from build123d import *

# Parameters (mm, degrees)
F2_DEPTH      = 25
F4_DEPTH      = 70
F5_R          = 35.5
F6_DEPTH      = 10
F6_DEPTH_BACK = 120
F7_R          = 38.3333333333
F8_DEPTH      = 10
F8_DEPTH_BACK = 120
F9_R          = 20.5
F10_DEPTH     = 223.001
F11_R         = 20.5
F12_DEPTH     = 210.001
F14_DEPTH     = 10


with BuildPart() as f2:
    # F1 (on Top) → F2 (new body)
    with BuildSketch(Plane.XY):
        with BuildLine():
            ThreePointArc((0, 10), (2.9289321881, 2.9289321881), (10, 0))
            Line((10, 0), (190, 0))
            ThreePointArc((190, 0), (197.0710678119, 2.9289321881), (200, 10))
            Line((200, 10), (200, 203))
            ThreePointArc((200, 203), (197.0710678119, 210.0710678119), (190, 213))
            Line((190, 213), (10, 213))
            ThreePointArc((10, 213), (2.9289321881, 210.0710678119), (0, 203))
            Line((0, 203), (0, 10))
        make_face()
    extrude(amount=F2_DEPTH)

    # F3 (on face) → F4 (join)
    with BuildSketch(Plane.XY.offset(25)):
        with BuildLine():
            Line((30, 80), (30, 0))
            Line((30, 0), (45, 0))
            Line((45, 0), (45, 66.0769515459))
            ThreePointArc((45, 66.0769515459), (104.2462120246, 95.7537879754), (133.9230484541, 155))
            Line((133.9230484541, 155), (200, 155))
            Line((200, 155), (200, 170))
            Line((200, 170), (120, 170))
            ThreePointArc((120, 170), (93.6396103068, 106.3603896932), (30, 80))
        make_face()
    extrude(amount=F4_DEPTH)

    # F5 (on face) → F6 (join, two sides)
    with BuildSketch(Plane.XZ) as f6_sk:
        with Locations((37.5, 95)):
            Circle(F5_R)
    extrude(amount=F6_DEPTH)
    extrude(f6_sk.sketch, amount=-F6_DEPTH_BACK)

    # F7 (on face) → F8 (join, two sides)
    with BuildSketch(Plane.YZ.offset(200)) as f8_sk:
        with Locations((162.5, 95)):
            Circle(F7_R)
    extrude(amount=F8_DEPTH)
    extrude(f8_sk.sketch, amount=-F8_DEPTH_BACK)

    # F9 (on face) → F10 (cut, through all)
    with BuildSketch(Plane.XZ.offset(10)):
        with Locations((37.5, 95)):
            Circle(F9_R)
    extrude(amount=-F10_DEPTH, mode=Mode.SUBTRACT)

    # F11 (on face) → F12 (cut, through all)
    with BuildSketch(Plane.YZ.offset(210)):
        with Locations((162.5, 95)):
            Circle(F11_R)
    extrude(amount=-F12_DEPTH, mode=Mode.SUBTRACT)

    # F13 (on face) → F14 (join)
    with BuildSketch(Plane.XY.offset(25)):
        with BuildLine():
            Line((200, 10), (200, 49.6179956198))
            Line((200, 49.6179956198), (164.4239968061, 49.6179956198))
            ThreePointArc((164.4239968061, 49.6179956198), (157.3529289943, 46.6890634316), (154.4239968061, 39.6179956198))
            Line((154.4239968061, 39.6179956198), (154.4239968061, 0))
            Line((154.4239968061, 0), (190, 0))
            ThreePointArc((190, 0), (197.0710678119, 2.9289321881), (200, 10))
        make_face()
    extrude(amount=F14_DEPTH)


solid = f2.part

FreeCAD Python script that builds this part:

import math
import FreeCAD as App
import Part
import Sketcher

V = App.Vector

doc = App.newDocument("Part")
params = doc.addObject("Spreadsheet::Sheet", "Params")
for row, (alias, value) in enumerate([
    ("sketch1_radius", "10 mm"),
    ("sketch1_width", "180 mm"),
    ("sketch1_height", "193 mm"),
    ("pad1_length", "25 mm"),
    ("sketch2_radius", "105 mm"),
    ("sketch2_radius2", "90 mm"),
    ("sketch2_width", "15 mm"),
    ("sketch2_width2", "80 mm"),
    ("pad2_length", "70 mm"),
    ("sketch3_diameter", "71 mm"),
    ("pad3_length", "10 mm"),
    ("pad3_length2", "120 mm"),
    ("pad4_length", "10 mm"),
    ("pad4_length2", "120 mm"),
    ("sketch5_diameter", "41 mm"),
    ("sketch6_diameter", "41 mm"),
    ("sketch7_radius", "10 mm"),
    ("pad5_length", "10 mm"),
], start=1):
    params.set(f"A{row}", alias)
    params.set(f"B{row}", "=" + value)
    params.setAlias(f"B{row}", alias)

body = doc.addObject("PartDesign::Body", "Body")

# Sketch on XY plane
sketch1 = body.newObject("Sketcher::SketchObject", "Sketch")
sketch1.AttachmentSupport = (doc.getObject("XY_Plane"), [""])
sketch1.MapMode = "FlatFace"
sketch1.addGeometry([
    Part.ArcOfCircle(Part.Circle(V(10, 10, 0), V(0, 0, 1), 10), math.radians(180), math.radians(270)),  # 0
    Part.LineSegment(V(10, 0, 0), V(190, 0, 0)),  # 1
    Part.ArcOfCircle(Part.Circle(V(190, 10, 0), V(0, 0, 1), 10), math.radians(-90), math.radians(0)),  # 2
    Part.LineSegment(V(200, 10, 0), V(200, 203, 0)),  # 3
    Part.ArcOfCircle(Part.Circle(V(190, 203, 0), V(0, 0, 1), 10), math.radians(0), math.radians(90)),  # 4
    Part.LineSegment(V(190, 213, 0), V(10, 213, 0)),  # 5
    Part.ArcOfCircle(Part.Circle(V(10, 203, 0), V(0, 0, 1), 10), math.radians(90), math.radians(180)),  # 6
    Part.LineSegment(V(0, 203, 0), V(0, 10, 0)),  # 7
], False)
sketch1.addConstraint([
    Sketcher.Constraint("Tangent", 0, 2, 1, 1),
    Sketcher.Constraint("Tangent", 1, 2, 2, 1),
    Sketcher.Constraint("Tangent", 2, 2, 3, 1),
    Sketcher.Constraint("Tangent", 3, 2, 4, 1),
    Sketcher.Constraint("Tangent", 4, 2, 5, 1),
    Sketcher.Constraint("Tangent", 5, 2, 6, 1),
    Sketcher.Constraint("Tangent", 6, 2, 7, 1),
    Sketcher.Constraint("Tangent", 7, 2, 0, 1),
    Sketcher.Constraint("Horizontal", 1),
    Sketcher.Constraint("Vertical", 3),
    Sketcher.Constraint("Horizontal", 5),
    Sketcher.Constraint("Vertical", 7),
    Sketcher.Constraint("Equal", 0, 2),
    Sketcher.Constraint("Equal", 2, 4),
    Sketcher.Constraint("Equal", 4, 6),
    Sketcher.Constraint("PointOnObject", 0, 2, -1),
    Sketcher.Constraint("PointOnObject", 6, 2, -2),
    Sketcher.Constraint("Radius", 0, 10.0),
    Sketcher.Constraint("DistanceX", 1, 1, 1, 2, 180.0),
    Sketcher.Constraint("DistanceY", 3, 1, 3, 2, 193.0),
])
sketch1.setExpression("Constraints[17]", "Params.sketch1_radius")
sketch1.setExpression("Constraints[18]", "Params.sketch1_width")
sketch1.setExpression("Constraints[19]", "Params.sketch1_height")
pad1 = body.newObject("PartDesign::Pad", "Pad")
pad1.Profile = sketch1
pad1.setExpression("Length", "Params.pad1_length")

# Sketch on XY plane
sketch2 = body.newObject("Sketcher::SketchObject", "Sketch001")
sketch2.AttachmentSupport = (doc.getObject("XY_Plane"), [""])
sketch2.MapMode = "FlatFace"
sketch2.AttachmentOffset = App.Placement(V(0, 0, 25), App.Rotation())
sketch2.addGeometry([
    Part.LineSegment(V(30, 80, 0), V(30, 0, 0)),  # 0
    Part.LineSegment(V(30, 0, 0), V(45, 0, 0)),  # 1
    Part.LineSegment(V(45, 0, 0), V(45, 66.076952, 0)),  # 2
    Part.ArcOfCircle(Part.Circle(V(30, 170, 0), V(0, 0, 1), 105), math.radians(-81.786789), math.radians(-8.213211)),  # 3
    Part.LineSegment(V(133.923048, 155, 0), V(200, 155, 0)),  # 4
    Part.LineSegment(V(200, 155, 0), V(200, 170, 0)),  # 5
    Part.LineSegment(V(200, 170, 0), V(120, 170, 0)),  # 6
    Part.ArcOfCircle(Part.Circle(V(30, 170, 0), V(0, 0, 1), 90), math.radians(-90), math.radians(0)),  # 7
], False)
sketch2.addConstraint([
    Sketcher.Constraint("Coincident", 0, 2, 1, 1),
    Sketcher.Constraint("Coincident", 1, 2, 2, 1),
    Sketcher.Constraint("Coincident", 2, 2, 3, 1),
    Sketcher.Constraint("Coincident", 3, 2, 4, 1),
    Sketcher.Constraint("Coincident", 4, 2, 5, 1),
    Sketcher.Constraint("Coincident", 5, 2, 6, 1),
    Sketcher.Constraint("Coincident", 6, 2, 7, 2),
    Sketcher.Constraint("Coincident", 7, 1, 0, 1),
    Sketcher.Constraint("Vertical", 0),
    Sketcher.Constraint("Horizontal", 1),
    Sketcher.Constraint("Vertical", 2),
    Sketcher.Constraint("Horizontal", 4),
    Sketcher.Constraint("Vertical", 5),
    Sketcher.Constraint("Horizontal", 6),
    Sketcher.Constraint("Coincident", 7, 3, 3, 3),
    Sketcher.Constraint("PointOnObject", 0, 2, -1),
    Sketcher.Constraint("Horizontal", 7, 3, 5, 2),
    Sketcher.Constraint("Vertical", 7, 3, 0, 2),
    Sketcher.Constraint("Equal", 6, 0),
    Sketcher.Constraint("Equal", 4, 2),
    Sketcher.Constraint("Radius", 3, 105.0),
    Sketcher.Constraint("Radius", 7, 90.0),
    Sketcher.Constraint("DistanceX", 1, 1, 1, 2, 15.0),
    Sketcher.Constraint("DistanceX", 6, 2, 6, 1, 80.0),
    Sketcher.Constraint("DistanceX", -1, 1, 3, 3, 30.0),
])
sketch2.setExpression("Constraints[20]", "Params.sketch2_radius")
sketch2.setExpression("Constraints[21]", "Params.sketch2_radius2")
sketch2.setExpression("Constraints[22]", "Params.sketch2_width")
sketch2.setExpression("Constraints[23]", "Params.sketch2_width2")
pad2 = body.newObject("PartDesign::Pad", "Pad001")
pad2.Profile = sketch2
pad2.setExpression("Length", "Params.pad2_length")

# Sketch on XZ plane
sketch3 = body.newObject("Sketcher::SketchObject", "Sketch002")
sketch3.AttachmentSupport = (doc.getObject("XZ_Plane"), [""])
sketch3.MapMode = "FlatFace"
sketch3.addGeometry(Part.Circle(V(37.5, 95, 0), V(0, 0, 1), 35.5), False)
sketch3.addConstraint([
    Sketcher.Constraint("Diameter", 0, 71.0),
    Sketcher.Constraint("DistanceY", -1, 1, 0, 3, 95.0),
    Sketcher.Constraint("DistanceX", -1, 1, 0, 3, 37.5),
])
sketch3.setExpression("Constraints[0]", "Params.sketch3_diameter")
pad3 = body.newObject("PartDesign::Pad", "Pad002")
pad3.Profile = sketch3
pad3.Type = "TwoLengths"
pad3.setExpression("Length", "Params.pad3_length")
pad3.setExpression("Length2", "Params.pad3_length2")

# Sketch on YZ plane
sketch4 = body.newObject("Sketcher::SketchObject", "Sketch003")
sketch4.AttachmentSupport = (doc.getObject("YZ_Plane"), [""])
sketch4.MapMode = "FlatFace"
sketch4.AttachmentOffset = App.Placement(V(0, 0, 200), App.Rotation())
sketch4.addGeometry(Part.Circle(V(162.5, 95, 0), V(0, 0, 1), 38.333333), False)
sketch4.addConstraint([
    Sketcher.Constraint("DistanceY", -1, 1, 0, 3, 95.0),
    Sketcher.Constraint("DistanceX", -1, 1, 0, 3, 162.5),
    Sketcher.Constraint("Diameter", 0, 76.666667),
])
pad4 = body.newObject("PartDesign::Pad", "Pad003")
pad4.Profile = sketch4
pad4.Type = "TwoLengths"
pad4.setExpression("Length", "Params.pad4_length")
pad4.setExpression("Length2", "Params.pad4_length2")

# Sketch on XZ plane
sketch5 = body.newObject("Sketcher::SketchObject", "Sketch004")
sketch5.AttachmentSupport = (doc.getObject("XZ_Plane"), [""])
sketch5.MapMode = "FlatFace"
sketch5.AttachmentOffset = App.Placement(V(0, 0, 10), App.Rotation())
sketch5.addGeometry(Part.Circle(V(37.5, 95, 0), V(0, 0, 1), 20.5), False)
sketch5.addConstraint([
    Sketcher.Constraint("Diameter", 0, 41.0),
    Sketcher.Constraint("DistanceY", -1, 1, 0, 3, 95.0),
    Sketcher.Constraint("DistanceX", -1, 1, 0, 3, 37.5),
])
sketch5.setExpression("Constraints[0]", "Params.sketch5_diameter")
pocket1 = body.newObject("PartDesign::Pocket", "Pocket")
pocket1.Profile = sketch5
pocket1.Type = "ThroughAll"

# Sketch on YZ plane
sketch6 = body.newObject("Sketcher::SketchObject", "Sketch005")
sketch6.AttachmentSupport = (doc.getObject("YZ_Plane"), [""])
sketch6.MapMode = "FlatFace"
sketch6.AttachmentOffset = App.Placement(V(0, 0, 210), App.Rotation())
sketch6.addGeometry(Part.Circle(V(162.5, 95, 0), V(0, 0, 1), 20.5), False)
sketch6.addConstraint([
    Sketcher.Constraint("Diameter", 0, 41.0),
    Sketcher.Constraint("DistanceY", -1, 1, 0, 3, 95.0),
    Sketcher.Constraint("DistanceX", -1, 1, 0, 3, 162.5),
])
sketch6.setExpression("Constraints[0]", "Params.sketch6_diameter")
pocket2 = body.newObject("PartDesign::Pocket", "Pocket001")
pocket2.Profile = sketch6
pocket2.Type = "ThroughAll"

# Sketch on XY plane
sketch7 = body.newObject("Sketcher::SketchObject", "Sketch006")
sketch7.AttachmentSupport = (doc.getObject("XY_Plane"), [""])
sketch7.MapMode = "FlatFace"
sketch7.AttachmentOffset = App.Placement(V(0, 0, 25), App.Rotation())
sketch7.addGeometry([
    Part.LineSegment(V(200, 10, 0), V(200, 49.617996, 0)),  # 0
    Part.LineSegment(V(200, 49.617996, 0), V(164.423997, 49.617996, 0)),  # 1
    Part.ArcOfCircle(Part.Circle(V(164.423997, 39.617996, 0), V(0, 0, 1), 10), math.radians(90), math.radians(180)),  # 2
    Part.LineSegment(V(154.423997, 39.617996, 0), V(154.423997, 0, 0)),  # 3
    Part.LineSegment(V(154.423997, 0, 0), V(190, 0, 0)),  # 4
    Part.ArcOfCircle(Part.Circle(V(190, 10, 0), V(0, 0, 1), 10), math.radians(-90), math.radians(0)),  # 5
], False)
sketch7.addConstraint([
    Sketcher.Constraint("Coincident", 0, 2, 1, 1),
    Sketcher.Constraint("Tangent", 1, 2, 2, 1),
    Sketcher.Constraint("Tangent", 2, 2, 3, 1),
    Sketcher.Constraint("Coincident", 3, 2, 4, 1),
    Sketcher.Constraint("Tangent", 4, 2, 5, 1),
    Sketcher.Constraint("Tangent", 5, 2, 0, 1),
    Sketcher.Constraint("Vertical", 0),
    Sketcher.Constraint("Horizontal", 1),
    Sketcher.Constraint("Vertical", 3),
    Sketcher.Constraint("Horizontal", 4),
    Sketcher.Constraint("Equal", 2, 5),
    Sketcher.Constraint("PointOnObject", 3, 2, -1),
    Sketcher.Constraint("Radius", 2, 10.0),
    Sketcher.Constraint("DistanceX", -1, 1, 5, 3, 190.0),
    Sketcher.Constraint("DistanceX", 1, 2, 1, 1, 35.576003),
    Sketcher.Constraint("DistanceY", 0, 1, 0, 2, 39.617996),
])
sketch7.setExpression("Constraints[12]", "Params.sketch7_radius")
pad5 = body.newObject("PartDesign::Pad", "Pad004")
pad5.Profile = sketch7
pad5.setExpression("Length", "Params.pad5_length")

doc.recompute()
